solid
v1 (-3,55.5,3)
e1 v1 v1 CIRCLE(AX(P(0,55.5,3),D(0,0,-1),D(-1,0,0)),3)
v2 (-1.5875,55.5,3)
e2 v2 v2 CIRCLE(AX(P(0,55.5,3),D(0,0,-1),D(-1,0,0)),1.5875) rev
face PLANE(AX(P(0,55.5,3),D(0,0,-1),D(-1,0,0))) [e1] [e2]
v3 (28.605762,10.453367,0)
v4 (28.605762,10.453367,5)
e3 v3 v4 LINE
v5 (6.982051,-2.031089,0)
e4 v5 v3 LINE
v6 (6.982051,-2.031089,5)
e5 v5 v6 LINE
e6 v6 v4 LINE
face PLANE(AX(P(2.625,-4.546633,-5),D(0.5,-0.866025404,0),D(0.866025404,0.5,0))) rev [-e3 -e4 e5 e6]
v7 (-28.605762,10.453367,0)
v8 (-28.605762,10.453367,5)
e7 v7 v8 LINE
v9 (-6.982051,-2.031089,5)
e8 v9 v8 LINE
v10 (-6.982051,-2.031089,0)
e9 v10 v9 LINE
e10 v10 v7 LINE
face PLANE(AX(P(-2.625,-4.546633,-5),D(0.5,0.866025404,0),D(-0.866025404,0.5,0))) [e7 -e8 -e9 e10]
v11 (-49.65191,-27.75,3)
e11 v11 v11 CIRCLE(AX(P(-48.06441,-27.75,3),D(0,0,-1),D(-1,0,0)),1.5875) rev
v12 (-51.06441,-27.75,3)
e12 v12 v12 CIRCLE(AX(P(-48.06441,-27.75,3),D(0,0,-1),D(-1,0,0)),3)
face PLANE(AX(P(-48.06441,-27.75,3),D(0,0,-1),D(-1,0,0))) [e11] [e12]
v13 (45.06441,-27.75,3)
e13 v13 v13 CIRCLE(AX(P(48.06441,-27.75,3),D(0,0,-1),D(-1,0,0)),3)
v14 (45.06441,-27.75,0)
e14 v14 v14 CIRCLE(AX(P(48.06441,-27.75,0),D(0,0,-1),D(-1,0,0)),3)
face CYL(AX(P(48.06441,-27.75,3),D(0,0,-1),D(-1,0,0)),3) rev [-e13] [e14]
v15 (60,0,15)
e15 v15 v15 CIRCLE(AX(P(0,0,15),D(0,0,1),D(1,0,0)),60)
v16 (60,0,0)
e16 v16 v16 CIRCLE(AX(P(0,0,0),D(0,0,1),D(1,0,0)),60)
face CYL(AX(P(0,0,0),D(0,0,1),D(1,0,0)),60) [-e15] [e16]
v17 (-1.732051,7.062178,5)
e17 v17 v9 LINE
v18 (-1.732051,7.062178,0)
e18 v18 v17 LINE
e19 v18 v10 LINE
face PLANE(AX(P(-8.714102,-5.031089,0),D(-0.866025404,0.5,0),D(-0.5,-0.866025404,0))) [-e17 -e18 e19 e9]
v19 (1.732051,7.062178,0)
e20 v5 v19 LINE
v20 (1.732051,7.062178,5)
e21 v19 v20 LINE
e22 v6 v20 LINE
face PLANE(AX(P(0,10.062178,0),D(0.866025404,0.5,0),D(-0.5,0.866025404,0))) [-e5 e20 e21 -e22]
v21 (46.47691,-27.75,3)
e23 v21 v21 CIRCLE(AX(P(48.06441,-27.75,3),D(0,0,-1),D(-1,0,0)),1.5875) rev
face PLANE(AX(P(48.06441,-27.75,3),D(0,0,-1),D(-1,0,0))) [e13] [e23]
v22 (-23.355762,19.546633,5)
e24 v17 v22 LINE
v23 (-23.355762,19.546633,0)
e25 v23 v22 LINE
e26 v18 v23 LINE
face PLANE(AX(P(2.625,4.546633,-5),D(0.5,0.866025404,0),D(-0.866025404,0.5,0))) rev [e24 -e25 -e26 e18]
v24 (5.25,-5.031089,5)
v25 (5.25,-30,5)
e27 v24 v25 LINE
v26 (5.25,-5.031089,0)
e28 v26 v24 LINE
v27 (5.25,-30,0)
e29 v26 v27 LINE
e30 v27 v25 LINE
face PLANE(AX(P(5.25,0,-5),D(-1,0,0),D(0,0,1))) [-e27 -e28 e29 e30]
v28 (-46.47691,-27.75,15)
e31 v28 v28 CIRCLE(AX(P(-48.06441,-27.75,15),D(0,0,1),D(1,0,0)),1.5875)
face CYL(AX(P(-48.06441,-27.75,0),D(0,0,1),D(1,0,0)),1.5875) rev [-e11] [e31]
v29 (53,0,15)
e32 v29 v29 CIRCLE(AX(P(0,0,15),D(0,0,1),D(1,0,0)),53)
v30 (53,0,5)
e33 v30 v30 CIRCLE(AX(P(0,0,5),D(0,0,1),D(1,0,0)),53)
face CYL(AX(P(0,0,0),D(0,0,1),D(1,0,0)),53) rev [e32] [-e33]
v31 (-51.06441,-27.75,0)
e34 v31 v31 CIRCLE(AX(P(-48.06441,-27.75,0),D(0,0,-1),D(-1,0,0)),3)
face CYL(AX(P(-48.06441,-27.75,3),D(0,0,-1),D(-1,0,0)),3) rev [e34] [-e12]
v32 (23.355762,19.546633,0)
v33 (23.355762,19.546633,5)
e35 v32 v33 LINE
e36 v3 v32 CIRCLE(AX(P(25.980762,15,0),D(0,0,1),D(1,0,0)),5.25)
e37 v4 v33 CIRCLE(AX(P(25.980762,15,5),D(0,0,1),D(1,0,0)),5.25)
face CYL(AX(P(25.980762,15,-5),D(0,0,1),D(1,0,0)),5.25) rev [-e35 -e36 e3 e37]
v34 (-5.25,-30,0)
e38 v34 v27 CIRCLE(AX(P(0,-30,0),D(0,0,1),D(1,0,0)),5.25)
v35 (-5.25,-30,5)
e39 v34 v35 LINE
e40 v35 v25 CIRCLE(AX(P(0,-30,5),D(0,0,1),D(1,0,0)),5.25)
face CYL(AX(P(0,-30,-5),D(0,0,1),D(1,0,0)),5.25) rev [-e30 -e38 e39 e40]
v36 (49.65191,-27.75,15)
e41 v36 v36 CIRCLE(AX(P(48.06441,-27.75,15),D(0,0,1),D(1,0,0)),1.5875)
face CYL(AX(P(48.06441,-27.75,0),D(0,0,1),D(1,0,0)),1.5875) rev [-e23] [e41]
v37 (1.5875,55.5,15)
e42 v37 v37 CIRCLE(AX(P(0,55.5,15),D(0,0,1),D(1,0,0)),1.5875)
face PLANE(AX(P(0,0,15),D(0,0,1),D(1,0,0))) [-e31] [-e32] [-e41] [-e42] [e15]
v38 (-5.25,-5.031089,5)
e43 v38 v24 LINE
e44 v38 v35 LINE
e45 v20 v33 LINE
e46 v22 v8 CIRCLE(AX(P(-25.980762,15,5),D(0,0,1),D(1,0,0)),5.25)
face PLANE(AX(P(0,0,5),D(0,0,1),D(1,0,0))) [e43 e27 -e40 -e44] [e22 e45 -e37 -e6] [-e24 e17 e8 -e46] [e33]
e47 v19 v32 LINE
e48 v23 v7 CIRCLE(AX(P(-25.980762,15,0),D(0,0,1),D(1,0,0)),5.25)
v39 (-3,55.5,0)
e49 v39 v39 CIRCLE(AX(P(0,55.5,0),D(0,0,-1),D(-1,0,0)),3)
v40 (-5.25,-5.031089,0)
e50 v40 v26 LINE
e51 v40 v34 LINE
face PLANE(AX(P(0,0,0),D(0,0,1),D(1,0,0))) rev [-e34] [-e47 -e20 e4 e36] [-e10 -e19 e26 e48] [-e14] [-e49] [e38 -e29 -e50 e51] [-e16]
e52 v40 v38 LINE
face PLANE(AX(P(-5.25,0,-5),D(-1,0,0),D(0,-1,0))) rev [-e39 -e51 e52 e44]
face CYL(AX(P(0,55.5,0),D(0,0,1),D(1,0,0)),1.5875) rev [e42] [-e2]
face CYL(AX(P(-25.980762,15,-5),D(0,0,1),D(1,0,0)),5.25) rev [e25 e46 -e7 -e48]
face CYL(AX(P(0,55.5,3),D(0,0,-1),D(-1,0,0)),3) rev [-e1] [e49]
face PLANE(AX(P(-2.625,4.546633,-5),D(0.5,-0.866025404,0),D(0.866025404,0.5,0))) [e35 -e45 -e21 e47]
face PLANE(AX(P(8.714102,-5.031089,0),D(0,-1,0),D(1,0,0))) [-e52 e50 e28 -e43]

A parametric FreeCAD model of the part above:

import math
import FreeCAD as App
import Part
import Sketcher

V = App.Vector
Q = App.Units.Quantity

doc = App.newDocument("Part")
params = doc.addObject("Spreadsheet::Sheet", "Params")
for row, (alias, value) in enumerate([
    ("sketch1_diameter", "110 mm"),
    ("pad1_length", "5 mm"),
    ("sketch2_radius", "5.25 mm"),
    ("pocket1_length", "10 mm"),
    ("sketch3_diameter", "120 mm"),
    ("sketch3_diameter2", "106 mm"),
    ("pad2_length", "10 mm"),
    ("pad2_length2", "5 mm"),
    ("pad3_length", "5 mm"),
    ("sketch6_diameter", "6 mm"),
    ("pocket3_length", "3 mm"),
], start=1):
    params.set(f"A{row}", alias)
    params.set(f"B{row}", "=" + value)
    params.setAlias(f"B{row}", alias)

body = doc.addObject("PartDesign::Body", "Body")

sketch1 = body.newObject("Sketcher::SketchObject", "Sketch")
sketch1.AttachmentSupport = (doc.getObject("XY_Plane"), [""])
sketch1.MapMode = "FlatFace"
sketch1.addGeometry(Part.Circle(V(0, 0, 0), V(0, 0, 1), 55), False)
sketch1.addConstraint(Sketcher.Constraint("Coincident", 0, 3, -1, 1))
sketch1.addConstraint(Sketcher.Constraint("Diameter", 0, 110.0))
sketch1.setExpression("Constraints[1]", "Params.sketch1_diameter")
pad1 = body.newObject("PartDesign::Pad", "Pad")
pad1.Profile = sketch1
pad1.setExpression("Length", "Params.pad1_length")

sketch2 = body.newObject("Sketcher::SketchObject", "Sketch001")
sketch2.AttachmentSupport = (doc.getObject("XY_Plane"), [""])
sketch2.MapMode = "FlatFace"
sketch2.AttachmentOffset = App.Placement(V(0, 0, 5), App.Rotation())
sketch2.addGeometry(Part.LineSegment(V(5, -3, 0), V(29, 10, 0)), False)
sketch2.addGeometry(Part.ArcOfCircle(Part.Circle(V(26, 15, 0), V(0, 0, 1), 5), math.radians(-60), math.radians(120)), False)
sketch2.addGeometry(Part.LineSegment(V(23, 20, 0), V(0, 6, 0)), False)
sketch2.addGeometry(Part.LineSegment(V(0, 6, 0), V(-23, 20, 0)), False)
sketch2.addGeometry(Part.ArcOfCircle(Part.Circle(V(-26, 15, 0), V(0, 0, 1), 5), math.radians(60), math.radians(240)), False)
sketch2.addGeometry(Part.LineSegment(V(-29, 10, 0), V(-5, -3, 0)), False)
sketch2.addGeometry(Part.LineSegment(V(-5, -3, 0), V(-5, -30, 0)), False)
sketch2.addGeometry(Part.ArcOfCircle(Part.Circle(V(0, -30, 0), V(0, 0, 1), 5), math.radians(180), math.radians(360)), False)
sketch2.addGeometry(Part.LineSegment(V(5, -30, 0), V(5, -3, 0)), False)
sketch2.addConstraint(Sketcher.Constraint("Tangent", 0, 2, 1, 1))
sketch2.addConstraint(Sketcher.Constraint("Tangent", 1, 2, 2, 1))
sketch2.addConstraint(Sketcher.Constraint("Coincident", 2, 2, 3, 1))
sketch2.addConstraint(Sketcher.Constraint("Tangent", 3, 2, 4, 1))
sketch2.addConstraint(Sketcher.Constraint("Tangent", 4, 2, 5, 1))
sketch2.addConstraint(Sketcher.Constraint("Coincident", 5, 2, 6, 1))
sketch2.addConstraint(Sketcher.Constraint("Tangent", 6, 2, 7, 1))
sketch2.addConstraint(Sketcher.Constraint("Tangent", 7, 2, 8, 1))
sketch2.addConstraint(Sketcher.Constraint("Coincident", 8, 2, 0, 1))
sketch2.addConstraint(Sketcher.Constraint("Vertical", 6))
sketch2.addConstraint(Sketcher.Constraint("Vertical", 8))
sketch2.addConstraint(Sketcher.Constraint("Equal", 1, 4))
sketch2.addConstraint(Sketcher.Constraint("Equal", 4, 7))
sketch2.addConstraint(Sketcher.Constraint("Symmetric", 1, 3, 4, 3, -2))
sketch2.addConstraint(Sketcher.Constraint("Symmetric", 5, 2, 8, 2, -2))
sketch2.addConstraint(Sketcher.Constraint("PointOnObject", 2, 2, -2))
sketch2.addConstraint(Sketcher.Constraint("Parallel", 0, 2))
sketch2.addConstraint(Sketcher.Constraint("Equal", 0, 2))
sketch2.addConstraint(Sketcher.Constraint("Radius", 1, 5.25))
sketch2.addConstraint(Sketcher.Constraint("DistanceY", -1, 1, 1, 3, 15.0))
sketch2.addConstraint(Sketcher.Constraint("DistanceY", 7, 3, -1, 1, 30.0))
sketch2.addConstraint(Sketcher.Constraint("DistanceY", 6, 2, 6, 1, 26.968911))
sketch2.setExpression("Constraints[18]", "Params.sketch2_radius")
pocket1 = body.newObject("PartDesign::Pocket", "Pocket")
pocket1.Profile = sketch2
pocket1.setExpression("Length", "Params.pocket1_length")

sketch3 = body.newObject("Sketcher::SketchObject", "Sketch002")
sketch3.AttachmentSupport = (doc.getObject("XY_Plane"), [""])
sketch3.MapMode = "FlatFace"
sketch3.AttachmentOffset = App.Placement(V(0, 0, 5), App.Rotation())
sketch3.addGeometry(Part.Circle(V(0, 0, 0), V(0, 0, 1), 60), False)
sketch3.addGeometry(Part.Circle(V(0, 0, 0), V(0, 0, 1), 53), False)
sketch3.addConstraint(Sketcher.Constraint("Coincident", 0, 3, -1, 1))
sketch3.addConstraint(Sketcher.Constraint("Coincident", 1, 3, -1, 1))
sketch3.addConstraint(Sketcher.Constraint("Diameter", 0, 120.0))
sketch3.addConstraint(Sketcher.Constraint("Diameter", 1, 106.0))
sketch3.setExpression("Constraints[2]", "Params.sketch3_diameter")
sketch3.setExpression("Constraints[3]", "Params.sketch3_diameter2")
pad2 = body.newObject("PartDesign::Pad", "Pad001")
pad2.Profile = sketch3
pad2.Type = "TwoLengths"
pad2.setExpression("Length", "Params.pad2_length")
pad2.setExpression("Length2", "Params.pad2_length2")

sketch4 = body.newObject("Sketcher::SketchObject", "Sketch003")
sketch4.AttachmentSupport = (doc.getObject("XY_Plane"), [""])
sketch4.MapMode = "FlatFace"
sketch4.AttachmentOffset = App.Placement(V(0, 0, 5), App.Rotation())
sketch4.addGeometry(Part.LineSegment(V(0, 10, 0), V(-9, -5, 0)), False)
sketch4.addGeometry(Part.LineSegment(V(-9, -5, 0), V(9, -5, 0)), False)
sketch4.addGeometry(Part.LineSegment(V(9, -5, 0), V(0, 10, 0)), False)
sketch4.addConstraint(Sketcher.Constraint("Coincident", 0, 2, 1, 1))
sketch4.addConstraint(Sketcher.Constraint("Coincident", 1, 2, 2, 1))
sketch4.addConstraint(Sketcher.Constraint("Coincident", 2, 2, 0, 1))
sketch4.addConstraint(Sketcher.Constraint("Horizontal", 1))
sketch4.addConstraint(Sketcher.Constraint("PointOnObject", 2, 2, -2))
sketch4.addConstraint(Sketcher.Constraint("Equal", 0, 2))
sketch4.addConstraint(Sketcher.Constraint("Angle", 0, Q("-120 deg")))
sketch4.addConstraint(Sketcher.Constraint("DistanceX", 0, 2, -1, 1, 8.714102))
sketch4.addConstraint(Sketcher.Constraint("DistanceY", 0, 2, -1, 1, 5.031089))
pad3 = body.newObject("PartDesign::Pad", "Pad002")
pad3.Profile = sketch4
pad3.setExpression("Length", "Params.pad3_length")
pad3.Reversed = True

sketch5 = body.newObject("Sketcher::SketchObject", "Sketch004")
sketch5.AttachmentSupport = (doc.getObject("XY_Plane"), [""])
sketch5.MapMode = "FlatFace"
sketch5.AttachmentOffset = App.Placement(V(0, 0, 15), App.Rotation())
sketch5.addGeometry(Part.Circle(V(0, 55.5, 0), V(0, 0, 1), 1.6), False)
sketch5.addGeometry(Part.Circle(V(48.1, -27.8, 0), V(0, 0, 1), 1.6), False)
sketch5.addGeometry(Part.Circle(V(-48.1, -27.8, 0), V(0, 0, 1), 1.6), False)
sketch5.addConstraint(Sketcher.Constraint("Equal", 0, 1))
sketch5.addConstraint(Sketcher.Constraint("Equal", 1, 2))
sketch5.addConstraint(Sketcher.Constraint("Symmetric", 1, 3, 2, 3, -2))
sketch5.addConstraint(Sketcher.Constraint("PointOnObject", 0, 3, -2))
sketch5.addConstraint(Sketcher.Constraint("Diameter", 0, 3.175))
sketch5.addConstraint(Sketcher.Constraint("DistanceY", -1, 1, 0, 3, 55.5))
sketch5.addConstraint(Sketcher.Constraint("DistanceY", 1, 3, -1, 1, 27.75))
sketch5.addConstraint(Sketcher.Constraint("DistanceX", -1, 1, 1, 3, 48.06441))
pocket2 = body.newObject("PartDesign::Pocket", "Pocket001")
pocket2.Profile = sketch5
pocket2.Type = "ThroughAll"

sketch6 = body.newObject("Sketcher::SketchObject", "Sketch005")
sketch6.AttachmentSupport = (doc.getObject("XY_Plane"), [""])
sketch6.MapMode = "FlatFace"
sketch6.addGeometry(Part.Circle(V(0, 55.5, 0), V(0, 0, 1), 3), False)
sketch6.addGeometry(Part.Circle(V(-48.1, -27.8, 0), V(0, 0, 1), 3), False)
sketch6.addGeometry(Part.Circle(V(48.1, -27.8, 0), V(0, 0, 1), 3), False)
sketch6.addConstraint(Sketcher.Constraint("Equal", 0, 1))
sketch6.addConstraint(Sketcher.Constraint("Equal", 1, 2))
sketch6.addConstraint(Sketcher.Constraint("Symmetric", 1, 3, 2, 3, -2))
sketch6.addConstraint(Sketcher.Constraint("PointOnObject", 0, 3, -2))
sketch6.addConstraint(Sketcher.Constraint("Diameter", 0, 6.0))
sketch6.addConstraint(Sketcher.Constraint("DistanceY", -1, 1, 0, 3, 55.5))
sketch6.addConstraint(Sketcher.Constraint("DistanceY", 1, 3, -1, 1, 27.75))
sketch6.addConstraint(Sketcher.Constraint("DistanceX", 1, 3, -1, 1, 48.06441))
sketch6.setExpression("Constraints[4]", "Params.sketch6_diameter")
pocket3 = body.newObject("PartDesign::Pocket", "Pocket002")
pocket3.Profile = sketch6
pocket3.setExpression("Length", "Params.pocket3_length")
pocket3.Reversed = True

doc.recompute()
